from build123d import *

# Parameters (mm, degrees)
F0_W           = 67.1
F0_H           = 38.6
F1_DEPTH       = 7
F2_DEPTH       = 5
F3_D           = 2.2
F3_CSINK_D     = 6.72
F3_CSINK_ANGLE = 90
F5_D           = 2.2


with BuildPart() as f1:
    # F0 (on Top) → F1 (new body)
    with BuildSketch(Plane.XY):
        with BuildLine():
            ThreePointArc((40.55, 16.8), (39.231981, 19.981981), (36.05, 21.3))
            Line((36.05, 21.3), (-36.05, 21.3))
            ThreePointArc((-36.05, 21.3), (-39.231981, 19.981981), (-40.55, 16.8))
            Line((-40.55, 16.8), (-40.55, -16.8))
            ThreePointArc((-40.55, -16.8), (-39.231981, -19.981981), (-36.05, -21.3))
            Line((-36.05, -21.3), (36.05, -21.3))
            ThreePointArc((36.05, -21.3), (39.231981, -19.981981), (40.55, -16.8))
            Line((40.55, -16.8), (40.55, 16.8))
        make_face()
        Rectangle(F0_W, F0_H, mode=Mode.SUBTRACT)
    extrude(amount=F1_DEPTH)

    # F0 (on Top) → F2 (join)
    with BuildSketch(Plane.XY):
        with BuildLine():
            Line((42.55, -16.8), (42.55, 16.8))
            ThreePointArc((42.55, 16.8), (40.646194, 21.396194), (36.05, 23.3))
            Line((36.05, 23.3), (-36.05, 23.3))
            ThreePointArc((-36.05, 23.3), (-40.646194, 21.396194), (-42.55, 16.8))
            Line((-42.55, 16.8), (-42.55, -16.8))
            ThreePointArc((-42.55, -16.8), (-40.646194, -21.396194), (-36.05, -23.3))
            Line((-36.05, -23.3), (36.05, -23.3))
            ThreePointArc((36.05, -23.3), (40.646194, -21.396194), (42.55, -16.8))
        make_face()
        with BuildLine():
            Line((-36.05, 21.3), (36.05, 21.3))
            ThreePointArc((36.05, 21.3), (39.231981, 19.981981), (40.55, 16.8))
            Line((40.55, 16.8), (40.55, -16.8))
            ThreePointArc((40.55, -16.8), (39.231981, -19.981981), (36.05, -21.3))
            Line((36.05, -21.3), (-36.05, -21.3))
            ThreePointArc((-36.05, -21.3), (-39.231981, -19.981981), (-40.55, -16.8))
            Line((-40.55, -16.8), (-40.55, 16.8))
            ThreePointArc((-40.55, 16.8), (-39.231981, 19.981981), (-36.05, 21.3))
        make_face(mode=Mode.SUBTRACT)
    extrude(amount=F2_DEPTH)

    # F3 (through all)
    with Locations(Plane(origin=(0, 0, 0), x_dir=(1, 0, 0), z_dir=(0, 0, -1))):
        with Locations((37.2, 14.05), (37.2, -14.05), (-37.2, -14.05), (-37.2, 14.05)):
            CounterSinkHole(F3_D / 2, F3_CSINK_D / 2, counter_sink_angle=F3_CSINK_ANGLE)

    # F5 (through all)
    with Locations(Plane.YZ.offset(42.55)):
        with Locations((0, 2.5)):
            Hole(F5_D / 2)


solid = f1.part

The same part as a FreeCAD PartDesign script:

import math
import FreeCAD as App
import Part
import Sketcher


def add_polygon(sketch, points):
    """Adds a closed chain of lines whose ends are joined by coincident constraints."""
    first, n = sketch.GeometryCount, len(points)
    for a, b in zip(points, points[1:] + points[:1]):
        sketch.addGeometry(Part.LineSegment(App.Vector(*a, 0), App.Vector(*b, 0)), False)
    for i in range(n):
        sketch.addConstraint(Sketcher.Constraint("Coincident", first + i, 2, first + (i + 1) % n, 1))

doc = App.newDocument("Part")
params = doc.addObject("Spreadsheet::Sheet", "Params")
for row, (alias, value) in enumerate([
    ("sketch1_radius", "4.499998 mm"),
    ("sketch1_width", "72.1 mm"),
    ("sketch1_width2", "67.1 mm"),
    ("sketch1_height", "33.6 mm"),
    ("sketch1_height2", "38.6 mm"),
    ("pad1_length", "7 mm"),
    ("sketch2_radius", "6.5 mm"),
    ("sketch2_radius2", "4.499998 mm"),
    ("sketch2_width", "72.1 mm"),
    ("sketch2_height", "33.6 mm"),
    ("pad2_length", "5 mm"),
    ("sketch3_diameter", "2.2 mm"),
    ("hole_diameter", "2.2 mm"),
    ("hole_csink_diameter", "6.72 mm"),
    ("sketch4_diameter", "2.2 mm"),
    ("hole2_diameter", "2.2 mm"),
], start=1):
    params.set(f"A{row}", alias)
    params.set(f"B{row}", "=" + value)
    params.setAlias(f"B{row}", alias)

body = doc.addObject("PartDesign::Body", "Body")

# Sketch on XY plane
sketch1 = doc.addObject("Sketcher::SketchObject", "Sketch")
body.addObject(sketch1)
sketch1.AttachmentSupport = (doc.XY_Plane, [""])
sketch1.MapMode = "FlatFace"
sketch1.addGeometry(Part.ArcOfCircle(Part.Circle(App.Vector(36.1, 16.8, 0), App.Vector(0, 0, 1), 4.5), math.radians(0), math.radians(90)), False)  # 0
sketch1.addGeometry(Part.LineSegment(App.Vector(36, 21.3, 0), App.Vector(-36, 21.3, 0)), False)  # 1
sketch1.addGeometry(Part.ArcOfCircle(Part.Circle(App.Vector(-36.1, 16.8, 0), App.Vector(0, 0, 1), 4.5), math.radians(90), math.radians(180)), False)  # 2
sketch1.addGeometry(Part.LineSegment(App.Vector(-40.5, 16.8, 0), App.Vector(-40.5, -16.8, 0)), False)  # 3
sketch1.addGeometry(Part.ArcOfCircle(Part.Circle(App.Vector(-36.1, -16.8, 0), App.Vector(0, 0, 1), 4.5), math.radians(180), math.radians(270)), False)  # 4
sketch1.addGeometry(Part.LineSegment(App.Vector(-36, -21.3, 0), App.Vector(36, -21.3, 0)), False)  # 5
sketch1.addGeometry(Part.ArcOfCircle(Part.Circle(App.Vector(36.1, -16.8, 0), App.Vector(0, 0, 1), 4.5), math.radians(-90), math.radians(0)), False)  # 6
sketch1.addGeometry(Part.LineSegment(App.Vector(40.5, -16.8, 0), App.Vector(40.5, 16.8, 0)), False)  # 7
add_polygon(sketch1, [(33.5, -19.3), (-33.5, -19.3), (-33.5, 19.3), (33.5, 19.3)])  # lines 8-11
sketch1.addConstraint(Sketcher.Constraint("Tangent", 0, 2, 1, 1))
sketch1.addConstraint(Sketcher.Constraint("Tangent", 1, 2, 2, 1))
sketch1.addConstraint(Sketcher.Constraint("Tangent", 2, 2, 3, 1))
sketch1.addConstraint(Sketcher.Constraint("Tangent", 3, 2, 4, 1))
sketch1.addConstraint(Sketcher.Constraint("Tangent", 4, 2, 5, 1))
sketch1.addConstraint(Sketcher.Constraint("Tangent", 5, 2, 6, 1))
sketch1.addConstraint(Sketcher.Constraint("Tangent", 6, 2, 7, 1))
sketch1.addConstraint(Sketcher.Constraint("Tangent", 7, 2, 0, 1))
sketch1.addConstraint(Sketcher.Constraint("Horizontal", 1))
sketch1.addConstraint(Sketcher.Constraint("Vertical", 3))
sketch1.addConstraint(Sketcher.Constraint("Horizontal", 5))
sketch1.addConstraint(Sketcher.Constraint("Vertical", 7))
sketch1.addConstraint(Sketcher.Constraint("Horizontal", 8))
sketch1.addConstraint(Sketcher.Constraint("Vertical", 9))
sketch1.addConstraint(Sketcher.Constraint("Horizontal", 10))
sketch1.addConstraint(Sketcher.Constraint("Vertical", 11))
sketch1.addConstraint(Sketcher.Constraint("Equal", 0, 2))
sketch1.addConstraint(Sketcher.Constraint("Equal", 2, 4))
sketch1.addConstraint(Sketcher.Constraint("Equal", 4, 6))
sketch1.addConstraint(Sketcher.Constraint("Symmetric", 0, 3, 4, 3, -1, 1))
sketch1.addConstraint(Sketcher.Constraint("Symmetric", 8, 2, 10, 2, -1, 1))
sketch1.addConstraint(Sketcher.Constraint("Radius", 0, 4.499998))
sketch1.addConstraint(Sketcher.Constraint("DistanceX", 1, 2, 1, 1, 72.1))
sketch1.addConstraint(Sketcher.Constraint("DistanceX", 8, 2, 8, 1, 67.1))
sketch1.addConstraint(Sketcher.Constraint("DistanceY", 3, 2, 3, 1, 33.6))
sketch1.addConstraint(Sketcher.Constraint("DistanceY", 9, 1, 9, 2, 38.6))
sketch1.setExpression("Constraints[25]", "Params.sketch1_radius")
sketch1.setExpression("Constraints[26]", "Params.sketch1_width")
sketch1.setExpression("Constraints[27]", "Params.sketch1_width2")
sketch1.setExpression("Constraints[28]", "Params.sketch1_height")
sketch1.setExpression("Constraints[29]", "Params.sketch1_height2")
pad1 = doc.addObject("PartDesign::Pad", "Pad")
body.addObject(pad1)
pad1.Profile = sketch1
pad1.setExpression("Length", "Params.pad1_length")

# Sketch on XY plane
sketch2 = doc.addObject("Sketcher::SketchObject", "Sketch001")
body.addObject(sketch2)
sketch2.AttachmentSupport = (doc.XY_Plane, [""])
sketch2.MapMode = "FlatFace"
sketch2.addGeometry(Part.LineSegment(App.Vector(42.5, -16.8, 0), App.Vector(42.5, 16.8, 0)), False)
sketch2.addGeometry(Part.ArcOfCircle(Part.Circle(App.Vector(36, 16.8, 0), App.Vector(0, 0, 1), 6.5), math.radians(0), math.radians(90)), False)
sketch2.addGeometry(Part.LineSegment(App.Vector(36, 23.3, 0), App.Vector(-36, 23.3, 0)), False)
sketch2.addGeometry(Part.ArcOfCircle(Part.Circle(App.Vector(-36, 16.8, 0), App.Vector(0, 0, 1), 6.5), math.radians(90), math.radians(180)), False)
sketch2.addGeometry(Part.LineSegment(App.Vector(-42.5, 16.8, 0), App.Vector(-42.5, -16.8, 0)), False)
sketch2.addGeometry(Part.ArcOfCircle(Part.Circle(App.Vector(-36, -16.8, 0), App.Vector(0, 0, 1), 6.5), math.radians(-180), math.radians(-90)), False)
sketch2.addGeometry(Part.LineSegment(App.Vector(-36, -23.3, 0), App.Vector(36, -23.3, 0)), False)
sketch2.addGeometry(Part.ArcOfCircle(Part.Circle(App.Vector(36, -16.8, 0), App.Vector(0, 0, 1), 6.5), math.radians(-90), math.radians(0)), False)
sketch2.addGeometry(Part.ArcOfCircle(Part.Circle(App.Vector(-36.1, 16.8, 0), App.Vector(0, 0, 1), 4.5), math.radians(90), math.radians(180)), False)
sketch2.addGeometry(Part.LineSegment(App.Vector(-36, 21.3, 0), App.Vector(36, 21.3, 0)), False)
sketch2.addGeometry(Part.ArcOfCircle(Part.Circle(App.Vector(36.1, 16.8, 0), App.Vector(0, 0, 1), 4.5), math.radians(0), math.radians(90)), False)
sketch2.addGeometry(Part.LineSegment(App.Vector(40.5, 16.8, 0), App.Vector(40.5, -16.8, 0)), False)
sketch2.addGeometry(Part.ArcOfCircle(Part.Circle(App.Vector(36.1, -16.8, 0), App.Vector(0, 0, 1), 4.5), math.radians(-90), math.radians(0)), False)
sketch2.addGeometry(Part.LineSegment(App.Vector(36, -21.3, 0), App.Vector(-36, -21.3, 0)), False)
sketch2.addGeometry(Part.ArcOfCircle(Part.Circle(App.Vector(-36.1, -16.8, 0), App.Vector(0, 0, 1), 4.5), math.radians(180), math.radians(270)), False)
sketch2.addGeometry(Part.LineSegment(App.Vector(-40.5, -16.8, 0), App.Vector(-40.5, 16.8, 0)), False)
sketch2.addConstraint(Sketcher.Constraint("Tangent", 0, 2, 1, 1))
sketch2.addConstraint(Sketcher.Constraint("Tangent", 1, 2, 2, 1))
sketch2.addConstraint(Sketcher.Constraint("Tangent", 2, 2, 3, 1))
sketch2.addConstraint(Sketcher.Constraint("Tangent", 3, 2, 4, 1))
sketch2.addConstraint(Sketcher.Constraint("Tangent", 4, 2, 5, 1))
sketch2.addConstraint(Sketcher.Constraint("Tangent", 5, 2, 6, 1))
sketch2.addConstraint(Sketcher.Constraint("Tangent", 6, 2, 7, 1))
sketch2.addConstraint(Sketcher.Constraint("Tangent", 7, 2, 0, 1))
sketch2.addConstraint(Sketcher.Constraint("Tangent", 8, 1, 9, 1))
sketch2.addConstraint(Sketcher.Constraint("Tangent", 9, 2, 10, 2))
sketch2.addConstraint(Sketcher.Constraint("Tangent", 10, 1, 11, 1))
sketch2.addConstraint(Sketcher.Constraint("Tangent", 11, 2, 12, 2))
sketch2.addConstraint(Sketcher.Constraint("Tangent", 12, 1, 13, 1))
sketch2.addConstraint(Sketcher.Constraint("Tangent", 13, 2, 14, 2))
sketch2.addConstraint(Sketcher.Constraint("Tangent", 14, 1, 15, 1))
sketch2.addConstraint(Sketcher.Constraint("Tangent", 15, 2, 8, 2))
sketch2.addConstraint(Sketcher.Constraint("Vertical", 0))
sketch2.addConstraint(Sketcher.Constraint("Horizontal", 2))
sketch2.addConstraint(Sketcher.Constraint("Vertical", 4))
sketch2.addConstraint(Sketcher.Constraint("Horizontal", 6))
sketch2.addConstraint(Sketcher.Constraint("Horizontal", 9))
sketch2.addConstraint(Sketcher.Constraint("Vertical", 11))
sketch2.addConstraint(Sketcher.Constraint("Horizontal", 13))
sketch2.addConstraint(Sketcher.Constraint("Vertical", 15))
sketch2.addConstraint(Sketcher.Constraint("Coincident", 8, 3, 3, 3))
sketch2.addConstraint(Sketcher.Constraint("Coincident", 10, 3, 1, 3))
sketch2.addConstraint(Sketcher.Constraint("Coincident", 12, 3, 7, 3))
sketch2.addConstraint(Sketcher.Constraint("Equal", 1, 3))
sketch2.addConstraint(Sketcher.Constraint("Equal", 3, 5))
sketch2.addConstraint(Sketcher.Constraint("Equal", 5, 7))
sketch2.addConstraint(Sketcher.Constraint("Equal", 12, 14))
sketch2.addConstraint(Sketcher.Constraint("Symmetric", 1, 3, 5, 3, -1, 1))
sketch2.addConstraint(Sketcher.Constraint("Radius", 1, 6.5))
sketch2.addConstraint(Sketcher.Constraint("Radius", 8, 4.499998))
sketch2.addConstraint(Sketcher.Constraint("DistanceX", 2, 2, 2, 1, 72.1))
sketch2.addConstraint(Sketcher.Constraint("DistanceY", 0, 1, 0, 2, 33.6))
sketch2.setExpression("Constraints[32]", "Params.sketch2_radius")
sketch2.setExpression("Constraints[33]", "Params.sketch2_radius2")
sketch2.setExpression("Constraints[34]", "Params.sketch2_width")
sketch2.setExpression("Constraints[35]", "Params.sketch2_height")
pad2 = doc.addObject("PartDesign::Pad", "Pad001")
body.addObject(pad2)
pad2.Profile = sketch2
pad2.setExpression("Length", "Params.pad2_length")

# Sketch on XY plane
sketch3 = doc.addObject("Sketcher::SketchObject", "Sketch002")
body.addObject(sketch3)
sketch3.AttachmentSupport = (doc.XY_Plane, [""])
sketch3.MapMode = "FlatFace"
sketch3.addGeometry(Part.Circle(App.Vector(37.2, -14.1, 0), App.Vector(0, 0, 1), 1.1), False)
sketch3.addGeometry(Part.Circle(App.Vector(37.2, 14.1, 0), App.Vector(0, 0, 1), 1.1), False)
sketch3.addGeometry(Part.Circle(App.Vector(-37.2, 14.1, 0), App.Vector(0, 0, 1), 1.1), False)
sketch3.addGeometry(Part.Circle(App.Vector(-37.2, -14.1, 0), App.Vector(0, 0, 1), 1.1), False)
sketch3.addConstraint(Sketcher.Constraint("Equal", 0, 1))
sketch3.addConstraint(Sketcher.Constraint("Equal", 1, 2))
sketch3.addConstraint(Sketcher.Constraint("Equal", 2, 3))
sketch3.addConstraint(Sketcher.Constraint("Symmetric", 0, 3, 2, 3, -1, 1))
sketch3.addConstraint(Sketcher.Constraint("Symmetric", 1, 3, 3, 3, -1, 1))
sketch3.addConstraint(Sketcher.Constraint("Symmetric", 1, 3, 2, 3, -2))
sketch3.addConstraint(Sketcher.Constraint("Diameter", 0, 2.2))
sketch3.addConstraint(Sketcher.Constraint("DistanceX", -1, 1, 0, 3, 37.2))
sketch3.addConstraint(Sketcher.Constraint("DistanceY", 0, 3, 1, 3, 28.1))
sketch3.setExpression("Constraints[6]", "Params.sketch3_diameter")
doc.recompute()
hole = doc.addObject("PartDesign::Hole", "Hole")
body.addObject(hole)
hole.Profile = sketch3
hole.ThreadType = "None"
hole.setExpression("Diameter", "Params.hole_diameter")
hole.DepthType = "ThroughAll"
hole.HoleCutType = "Countersink"
hole.setExpression("HoleCutDiameter", "Params.hole_csink_diameter")
hole.HoleCutCountersinkAngle = 90
hole.Reversed = True

# Sketch on YZ plane
sketch4 = doc.addObject("Sketcher::SketchObject", "Sketch003")
body.addObject(sketch4)
sketch4.AttachmentSupport = (doc.YZ_Plane, [""])
sketch4.MapMode = "FlatFace"
sketch4.AttachmentOffset = App.Placement(App.Vector(0, 0, 42.55), App.Rotation())
sketch4.addGeometry(Part.Circle(App.Vector(0, 2.5, 0), App.Vector(0, 0, 1), 1.1), False)
sketch4.addConstraint(Sketcher.Constraint("PointOnObject", 0, 3, -2))
sketch4.addConstraint(Sketcher.Constraint("Diameter", 0, 2.2))
sketch4.addConstraint(Sketcher.Constraint("DistanceY", -1, 1, 0, 3, 2.5))
sketch4.setExpression("Constraints[1]", "Params.sketch4_diameter")
doc.recompute()
hole2 = doc.addObject("PartDesign::Hole", "Hole001")
body.addObject(hole2)
hole2.Profile = sketch4
hole2.ThreadType = "None"
hole2.setExpression("Diameter", "Params.hole2_diameter")
hole2.DepthType = "ThroughAll"

doc.recompute()
